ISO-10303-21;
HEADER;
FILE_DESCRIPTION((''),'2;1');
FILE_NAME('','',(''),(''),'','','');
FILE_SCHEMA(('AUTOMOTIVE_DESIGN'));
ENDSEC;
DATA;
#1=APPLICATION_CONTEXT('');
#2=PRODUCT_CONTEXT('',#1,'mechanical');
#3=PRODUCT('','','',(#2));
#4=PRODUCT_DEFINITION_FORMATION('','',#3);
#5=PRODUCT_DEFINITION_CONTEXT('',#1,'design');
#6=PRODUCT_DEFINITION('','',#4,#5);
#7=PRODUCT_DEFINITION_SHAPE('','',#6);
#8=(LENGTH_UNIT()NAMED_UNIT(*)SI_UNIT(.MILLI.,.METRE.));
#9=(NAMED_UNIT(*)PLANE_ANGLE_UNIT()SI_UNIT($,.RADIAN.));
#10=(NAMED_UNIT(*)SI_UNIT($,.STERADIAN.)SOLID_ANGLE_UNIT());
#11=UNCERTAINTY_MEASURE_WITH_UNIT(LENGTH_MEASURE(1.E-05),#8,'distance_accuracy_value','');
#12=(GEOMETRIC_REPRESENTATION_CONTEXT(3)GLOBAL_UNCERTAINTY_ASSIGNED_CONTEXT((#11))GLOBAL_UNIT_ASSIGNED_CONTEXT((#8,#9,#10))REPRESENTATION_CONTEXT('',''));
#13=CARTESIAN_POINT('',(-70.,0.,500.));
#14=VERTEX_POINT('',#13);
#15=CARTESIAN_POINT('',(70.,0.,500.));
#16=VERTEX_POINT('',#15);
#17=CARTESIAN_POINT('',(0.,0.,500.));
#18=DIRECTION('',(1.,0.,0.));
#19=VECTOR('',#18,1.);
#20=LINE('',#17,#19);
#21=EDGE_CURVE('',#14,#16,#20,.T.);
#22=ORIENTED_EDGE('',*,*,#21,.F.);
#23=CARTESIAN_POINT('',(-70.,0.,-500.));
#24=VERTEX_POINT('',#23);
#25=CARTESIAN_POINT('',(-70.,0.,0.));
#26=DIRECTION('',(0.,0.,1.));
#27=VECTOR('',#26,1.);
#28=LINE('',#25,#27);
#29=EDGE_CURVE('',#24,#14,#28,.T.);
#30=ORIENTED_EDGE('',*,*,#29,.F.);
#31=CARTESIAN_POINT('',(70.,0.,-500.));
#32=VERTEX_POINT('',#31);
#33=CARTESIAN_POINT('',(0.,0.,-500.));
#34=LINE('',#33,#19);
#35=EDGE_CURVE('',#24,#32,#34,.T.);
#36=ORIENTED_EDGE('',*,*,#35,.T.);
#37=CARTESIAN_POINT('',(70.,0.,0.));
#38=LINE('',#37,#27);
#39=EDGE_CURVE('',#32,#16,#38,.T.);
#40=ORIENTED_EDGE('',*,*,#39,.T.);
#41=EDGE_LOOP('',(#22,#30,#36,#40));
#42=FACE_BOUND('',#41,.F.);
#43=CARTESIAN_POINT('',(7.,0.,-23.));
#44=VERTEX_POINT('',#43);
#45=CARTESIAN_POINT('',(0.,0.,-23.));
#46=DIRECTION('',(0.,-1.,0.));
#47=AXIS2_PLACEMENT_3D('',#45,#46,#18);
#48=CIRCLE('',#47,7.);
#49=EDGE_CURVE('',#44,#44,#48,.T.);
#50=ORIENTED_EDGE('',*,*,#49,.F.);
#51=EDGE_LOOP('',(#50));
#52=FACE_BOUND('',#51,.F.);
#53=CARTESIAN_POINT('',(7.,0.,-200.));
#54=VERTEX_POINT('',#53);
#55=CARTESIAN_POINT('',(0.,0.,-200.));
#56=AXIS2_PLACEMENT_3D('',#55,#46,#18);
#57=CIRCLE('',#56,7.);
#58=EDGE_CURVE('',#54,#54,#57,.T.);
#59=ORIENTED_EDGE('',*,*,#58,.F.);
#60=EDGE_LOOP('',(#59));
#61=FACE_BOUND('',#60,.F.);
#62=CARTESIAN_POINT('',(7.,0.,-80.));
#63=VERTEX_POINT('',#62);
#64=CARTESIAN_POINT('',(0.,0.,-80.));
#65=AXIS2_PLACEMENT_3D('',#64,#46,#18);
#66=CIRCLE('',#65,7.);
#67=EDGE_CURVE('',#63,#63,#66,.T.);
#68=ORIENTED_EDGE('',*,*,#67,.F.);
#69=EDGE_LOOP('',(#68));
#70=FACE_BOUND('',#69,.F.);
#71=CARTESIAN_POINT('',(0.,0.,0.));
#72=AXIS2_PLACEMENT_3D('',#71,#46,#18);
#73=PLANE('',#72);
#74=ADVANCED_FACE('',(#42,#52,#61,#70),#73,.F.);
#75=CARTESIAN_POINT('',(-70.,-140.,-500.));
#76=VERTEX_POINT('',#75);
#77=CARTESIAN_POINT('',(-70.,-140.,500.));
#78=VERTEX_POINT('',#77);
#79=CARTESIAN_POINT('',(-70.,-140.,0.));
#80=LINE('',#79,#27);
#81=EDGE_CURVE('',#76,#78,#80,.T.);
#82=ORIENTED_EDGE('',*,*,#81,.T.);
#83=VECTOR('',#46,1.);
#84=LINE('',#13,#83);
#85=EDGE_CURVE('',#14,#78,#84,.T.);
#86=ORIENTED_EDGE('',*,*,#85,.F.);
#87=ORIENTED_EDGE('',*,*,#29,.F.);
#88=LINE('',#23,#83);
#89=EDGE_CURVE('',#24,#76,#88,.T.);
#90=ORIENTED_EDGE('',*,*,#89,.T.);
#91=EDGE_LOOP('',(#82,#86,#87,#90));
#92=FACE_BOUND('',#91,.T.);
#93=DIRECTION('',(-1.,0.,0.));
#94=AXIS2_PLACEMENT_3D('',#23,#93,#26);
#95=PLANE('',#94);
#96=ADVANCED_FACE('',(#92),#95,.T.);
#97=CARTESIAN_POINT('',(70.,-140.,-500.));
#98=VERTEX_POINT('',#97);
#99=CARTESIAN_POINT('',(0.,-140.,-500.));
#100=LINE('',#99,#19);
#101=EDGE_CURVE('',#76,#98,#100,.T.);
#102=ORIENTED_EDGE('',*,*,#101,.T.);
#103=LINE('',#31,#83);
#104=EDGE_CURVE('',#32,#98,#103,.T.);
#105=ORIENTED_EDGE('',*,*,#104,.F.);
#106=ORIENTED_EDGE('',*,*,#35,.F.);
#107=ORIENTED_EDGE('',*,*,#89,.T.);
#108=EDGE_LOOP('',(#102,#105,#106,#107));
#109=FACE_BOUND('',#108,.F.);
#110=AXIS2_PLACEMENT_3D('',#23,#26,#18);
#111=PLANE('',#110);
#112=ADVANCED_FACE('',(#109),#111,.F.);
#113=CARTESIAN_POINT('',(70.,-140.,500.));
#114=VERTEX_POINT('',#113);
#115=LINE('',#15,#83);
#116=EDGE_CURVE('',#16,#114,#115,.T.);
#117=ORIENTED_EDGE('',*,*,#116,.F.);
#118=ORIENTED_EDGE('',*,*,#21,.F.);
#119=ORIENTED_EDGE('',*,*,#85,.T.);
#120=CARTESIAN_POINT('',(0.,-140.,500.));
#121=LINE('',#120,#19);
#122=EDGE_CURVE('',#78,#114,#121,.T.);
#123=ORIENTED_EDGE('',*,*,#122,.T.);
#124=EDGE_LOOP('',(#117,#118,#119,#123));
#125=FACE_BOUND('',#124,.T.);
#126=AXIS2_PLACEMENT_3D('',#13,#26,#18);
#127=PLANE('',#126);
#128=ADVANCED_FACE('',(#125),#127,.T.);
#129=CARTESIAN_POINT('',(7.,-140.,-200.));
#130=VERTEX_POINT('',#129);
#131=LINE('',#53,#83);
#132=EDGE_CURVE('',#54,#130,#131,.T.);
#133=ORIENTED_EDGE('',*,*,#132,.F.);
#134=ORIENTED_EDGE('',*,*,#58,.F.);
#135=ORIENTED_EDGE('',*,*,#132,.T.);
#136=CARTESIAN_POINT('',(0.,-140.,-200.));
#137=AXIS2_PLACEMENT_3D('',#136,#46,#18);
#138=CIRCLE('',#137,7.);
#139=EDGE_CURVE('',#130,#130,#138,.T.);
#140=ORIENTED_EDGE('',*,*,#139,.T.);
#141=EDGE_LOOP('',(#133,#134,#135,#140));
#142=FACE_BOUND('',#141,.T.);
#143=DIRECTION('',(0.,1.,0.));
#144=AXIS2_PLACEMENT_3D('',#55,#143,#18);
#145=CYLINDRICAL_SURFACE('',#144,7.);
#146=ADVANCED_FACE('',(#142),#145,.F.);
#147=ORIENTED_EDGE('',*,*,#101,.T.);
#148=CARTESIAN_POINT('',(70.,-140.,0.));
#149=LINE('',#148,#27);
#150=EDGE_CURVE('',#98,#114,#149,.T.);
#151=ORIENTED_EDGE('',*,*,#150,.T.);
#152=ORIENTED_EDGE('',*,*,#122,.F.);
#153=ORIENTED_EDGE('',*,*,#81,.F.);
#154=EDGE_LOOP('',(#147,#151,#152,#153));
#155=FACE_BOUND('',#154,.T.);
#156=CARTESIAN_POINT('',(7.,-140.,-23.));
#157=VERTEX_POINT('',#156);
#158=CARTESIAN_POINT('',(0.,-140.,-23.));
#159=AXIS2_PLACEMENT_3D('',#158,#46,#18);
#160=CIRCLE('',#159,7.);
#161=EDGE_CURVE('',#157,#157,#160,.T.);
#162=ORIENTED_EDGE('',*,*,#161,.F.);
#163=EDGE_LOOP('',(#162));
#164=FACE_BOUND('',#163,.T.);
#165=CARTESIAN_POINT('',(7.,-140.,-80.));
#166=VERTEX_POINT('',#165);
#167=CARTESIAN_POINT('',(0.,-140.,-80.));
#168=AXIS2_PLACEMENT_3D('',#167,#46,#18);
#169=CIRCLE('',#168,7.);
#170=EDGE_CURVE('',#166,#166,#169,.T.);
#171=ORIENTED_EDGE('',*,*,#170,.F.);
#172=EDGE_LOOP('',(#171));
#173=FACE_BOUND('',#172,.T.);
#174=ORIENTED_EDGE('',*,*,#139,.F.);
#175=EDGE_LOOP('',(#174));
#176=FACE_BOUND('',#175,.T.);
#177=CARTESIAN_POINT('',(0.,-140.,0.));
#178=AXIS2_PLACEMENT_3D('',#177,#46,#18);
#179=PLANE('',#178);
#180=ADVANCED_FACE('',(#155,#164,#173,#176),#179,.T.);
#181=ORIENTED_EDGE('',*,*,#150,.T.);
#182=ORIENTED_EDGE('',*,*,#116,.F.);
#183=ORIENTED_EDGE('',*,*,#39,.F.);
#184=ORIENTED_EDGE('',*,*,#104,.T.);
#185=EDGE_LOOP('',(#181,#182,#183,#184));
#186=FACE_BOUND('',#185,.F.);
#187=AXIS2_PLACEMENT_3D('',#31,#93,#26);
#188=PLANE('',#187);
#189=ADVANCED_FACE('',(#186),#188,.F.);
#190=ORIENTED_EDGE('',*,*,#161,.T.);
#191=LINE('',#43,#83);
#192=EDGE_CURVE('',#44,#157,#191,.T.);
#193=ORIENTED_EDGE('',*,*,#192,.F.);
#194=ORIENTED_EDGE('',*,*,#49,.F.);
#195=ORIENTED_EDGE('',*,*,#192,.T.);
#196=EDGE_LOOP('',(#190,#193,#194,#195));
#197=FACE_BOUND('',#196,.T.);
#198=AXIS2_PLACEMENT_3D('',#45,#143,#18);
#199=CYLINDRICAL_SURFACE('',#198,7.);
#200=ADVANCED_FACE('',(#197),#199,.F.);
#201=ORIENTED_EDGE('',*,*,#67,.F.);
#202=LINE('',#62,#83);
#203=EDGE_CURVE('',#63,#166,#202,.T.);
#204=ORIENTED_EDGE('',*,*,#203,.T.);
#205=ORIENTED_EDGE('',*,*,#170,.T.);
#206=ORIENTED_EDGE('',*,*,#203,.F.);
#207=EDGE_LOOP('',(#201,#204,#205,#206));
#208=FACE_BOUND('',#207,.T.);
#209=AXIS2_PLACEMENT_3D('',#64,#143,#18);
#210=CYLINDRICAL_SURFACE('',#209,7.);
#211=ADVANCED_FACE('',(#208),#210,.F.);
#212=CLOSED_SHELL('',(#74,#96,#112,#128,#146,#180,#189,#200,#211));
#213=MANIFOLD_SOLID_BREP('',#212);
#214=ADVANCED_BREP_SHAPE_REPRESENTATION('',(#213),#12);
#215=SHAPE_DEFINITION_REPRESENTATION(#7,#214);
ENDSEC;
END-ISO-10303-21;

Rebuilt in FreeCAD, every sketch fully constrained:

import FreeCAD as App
import Part
import Sketcher
Q = App.Units.Quantity

doc = App.newDocument("Part")
params = doc.addObject("Spreadsheet::Sheet", "Params")
for row, (alias, value) in enumerate([
    ("sketch1_diameter", "14 mm"),
    ("sketch1_width", "140 mm"),
    ("sketch1_height", "1000 mm"),
    ("pad1_length", "140 mm"),
], start=1):
    params.set(f"A{row}", alias)
    params.set(f"B{row}", "=" + value)
    params.setAlias(f"B{row}", alias)

body = doc.addObject("PartDesign::Body", "Body")

# Sketch on XZ plane
sketch1 = body.newObject("Sketcher::SketchObject", "Sketch")
sketch1.AttachmentSupport = (doc.getObject("XZ_Plane"), [""])
sketch1.MapMode = "FlatFace"
sketch1.addGeometry([
    Part.LineSegment(App.Vector(-70, 500, 0), App.Vector(-70, -500, 0)),  # 0
    Part.LineSegment(App.Vector(-70, -500, 0), App.Vector(70, -500, 0)),  # 1
    Part.LineSegment(App.Vector(70, -500, 0), App.Vector(70, 500, 0)),  # 2
    Part.LineSegment(App.Vector(70, 500, 0), App.Vector(-70, 500, 0)),  # 3
    Part.Circle(App.Vector(0, -200, 0), App.Vector(0, 0, 1), 7),  # 4
    Part.Circle(App.Vector(0, -80, 0), App.Vector(0, 0, 1), 7),  # 5
    Part.Circle(App.Vector(0, -23, 0), App.Vector(0, 0, 1), 7),  # 6
], False)
sketch1.addConstraint([
    Sketcher.Constraint("Coincident", 0, 2, 1, 1),
    Sketcher.Constraint("Coincident", 1, 2, 2, 1),
    Sketcher.Constraint("Coincident", 2, 2, 3, 1),
    Sketcher.Constraint("Coincident", 3, 2, 0, 1),
    Sketcher.Constraint("Vertical", 0),
    Sketcher.Constraint("Horizontal", 1),
    Sketcher.Constraint("Vertical", 2),
    Sketcher.Constraint("Horizontal", 3),
    Sketcher.Constraint("Equal", 4, 5),
    Sketcher.Constraint("Equal", 5, 6),
    Sketcher.Constraint("Symmetric", 0, 2, 2, 2, -1, 1),
    Sketcher.Constraint("PointOnObject", 4, 3, -2),
    Sketcher.Constraint("PointOnObject", 5, 3, -2),
    Sketcher.Constraint("PointOnObject", 6, 3, -2),
    Sketcher.Constraint("Diameter", 4, Q("14 mm")),
    Sketcher.Constraint("DistanceX", 1, 1, 1, 2, Q("140 mm")),
    Sketcher.Constraint("DistanceY", 0, 2, 0, 1, Q("1000 mm")),
    Sketcher.Constraint("DistanceY", 4, 3, -1, 1, Q("200 mm")),
    Sketcher.Constraint("DistanceY", 5, 3, -1, 1, Q("80 mm")),
    Sketcher.Constraint("DistanceY", 6, 3, -1, 1, Q("23 mm")),
])
sketch1.setExpression("Constraints[14]", "Params.sketch1_diameter")
sketch1.setExpression("Constraints[15]", "Params.sketch1_width")
sketch1.setExpression("Constraints[16]", "Params.sketch1_height")
pad1 = body.newObject("PartDesign::Pad", "Pad")
pad1.Profile = sketch1
pad1.setExpression("Length", "Params.pad1_length")

doc.recompute()
